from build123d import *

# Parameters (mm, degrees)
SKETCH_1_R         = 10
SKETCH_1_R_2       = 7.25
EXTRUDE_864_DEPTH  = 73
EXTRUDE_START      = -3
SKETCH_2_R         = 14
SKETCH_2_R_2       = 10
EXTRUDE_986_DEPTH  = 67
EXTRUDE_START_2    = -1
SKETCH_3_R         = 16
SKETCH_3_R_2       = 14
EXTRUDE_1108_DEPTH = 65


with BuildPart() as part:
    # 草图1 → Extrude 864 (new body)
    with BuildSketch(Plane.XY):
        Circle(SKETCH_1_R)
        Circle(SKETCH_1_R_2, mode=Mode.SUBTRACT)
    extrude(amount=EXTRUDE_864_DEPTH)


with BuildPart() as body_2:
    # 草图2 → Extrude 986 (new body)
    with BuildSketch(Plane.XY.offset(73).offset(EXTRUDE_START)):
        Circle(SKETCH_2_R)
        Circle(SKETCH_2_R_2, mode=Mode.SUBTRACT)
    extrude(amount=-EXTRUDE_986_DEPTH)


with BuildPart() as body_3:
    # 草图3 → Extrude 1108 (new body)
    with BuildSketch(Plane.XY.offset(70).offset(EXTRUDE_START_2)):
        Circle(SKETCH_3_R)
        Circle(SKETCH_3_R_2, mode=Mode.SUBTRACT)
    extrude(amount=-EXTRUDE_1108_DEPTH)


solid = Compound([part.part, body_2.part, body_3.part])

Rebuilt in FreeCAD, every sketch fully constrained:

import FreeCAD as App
import Part
import Sketcher

V = App.Vector
Q = App.Units.Quantity

doc = App.newDocument("Part")
body = doc.addObject("PartDesign::Body", "Body")

# Sketch on XY plane
sketch1 = doc.addObject("Sketcher::SketchObject", "Sketch")
body.addObject(sketch1)
sketch1.AttachmentSupport = (doc.XY_Plane, [""])
sketch1.MapMode = "FlatFace"
sketch1.addGeometry(Part.Circle(V(0, 0, 0), V(0, 0, 1), 10), False)
sketch1.addGeometry(Part.Circle(V(0, 0, 0), V(0, 0, 1), 7), False)
sketch1.addConstraint(Sketcher.Constraint("Coincident", 0, 3, -1, 1))
sketch1.addConstraint(Sketcher.Constraint("Coincident", 1, 3, -1, 1))
sketch1.addConstraint(Sketcher.Constraint("Diameter", 0, Q("20 mm")))
sketch1.addConstraint(Sketcher.Constraint("Diameter", 1, Q("14.5 mm")))
pad1 = doc.addObject("PartDesign::Pad", "Pad")
body.addObject(pad1)
pad1.Profile = sketch1
pad1.Length = 73
body2 = doc.addObject("PartDesign::Body", "Body001")

# Sketch on XY plane
sketch2 = doc.addObject("Sketcher::SketchObject", "Sketch001")
body2.addObject(sketch2)
sketch2.AttachmentSupport = (doc.getObject("XY_Plane001"), [""])
sketch2.MapMode = "FlatFace"
sketch2.AttachmentOffset = App.Placement(V(0, 0, 70), App.Rotation())
sketch2.addGeometry(Part.Circle(V(0, 0, 0), V(0, 0, 1), 14), False)
sketch2.addGeometry(Part.Circle(V(0, 0, 0), V(0, 0, 1), 10), False)
sketch2.addConstraint(Sketcher.Constraint("Coincident", 0, 3, -1, 1))
sketch2.addConstraint(Sketcher.Constraint("Coincident", 1, 3, -1, 1))
sketch2.addConstraint(Sketcher.Constraint("Diameter", 0, Q("28 mm")))
sketch2.addConstraint(Sketcher.Constraint("Diameter", 1, Q("20 mm")))
pad2 = doc.addObject("PartDesign::Pad", "Pad001")
body2.addObject(pad2)
pad2.Profile = sketch2
pad2.Length = 67
pad2.Reversed = True
body3 = doc.addObject("PartDesign::Body", "Body002")

# Sketch on XY plane
sketch3 = doc.addObject("Sketcher::SketchObject", "Sketch002")
body3.addObject(sketch3)
sketch3.AttachmentSupport = (doc.getObject("XY_Plane002"), [""])
sketch3.MapMode = "FlatFace"
sketch3.AttachmentOffset = App.Placement(V(0, 0, 69), App.Rotation())
sketch3.addGeometry(Part.Circle(V(0, 0, 0), V(0, 0, 1), 16), False)
sketch3.addGeometry(Part.Circle(V(0, 0, 0), V(0, 0, 1), 14), False)
sketch3.addConstraint(Sketcher.Constraint("Coincident", 0, 3, -1, 1))
sketch3.addConstraint(Sketcher.Constraint("Coincident", 1, 3, -1, 1))
sketch3.addConstraint(Sketcher.Constraint("Diameter", 0, Q("32 mm")))
sketch3.addConstraint(Sketcher.Constraint("Diameter", 1, Q("28 mm")))
pad3 = doc.addObject("PartDesign::Pad", "Pad002")
body3.addObject(pad3)
pad3.Profile = sketch3
pad3.Length = 65
pad3.Reversed = True

doc.recompute()
